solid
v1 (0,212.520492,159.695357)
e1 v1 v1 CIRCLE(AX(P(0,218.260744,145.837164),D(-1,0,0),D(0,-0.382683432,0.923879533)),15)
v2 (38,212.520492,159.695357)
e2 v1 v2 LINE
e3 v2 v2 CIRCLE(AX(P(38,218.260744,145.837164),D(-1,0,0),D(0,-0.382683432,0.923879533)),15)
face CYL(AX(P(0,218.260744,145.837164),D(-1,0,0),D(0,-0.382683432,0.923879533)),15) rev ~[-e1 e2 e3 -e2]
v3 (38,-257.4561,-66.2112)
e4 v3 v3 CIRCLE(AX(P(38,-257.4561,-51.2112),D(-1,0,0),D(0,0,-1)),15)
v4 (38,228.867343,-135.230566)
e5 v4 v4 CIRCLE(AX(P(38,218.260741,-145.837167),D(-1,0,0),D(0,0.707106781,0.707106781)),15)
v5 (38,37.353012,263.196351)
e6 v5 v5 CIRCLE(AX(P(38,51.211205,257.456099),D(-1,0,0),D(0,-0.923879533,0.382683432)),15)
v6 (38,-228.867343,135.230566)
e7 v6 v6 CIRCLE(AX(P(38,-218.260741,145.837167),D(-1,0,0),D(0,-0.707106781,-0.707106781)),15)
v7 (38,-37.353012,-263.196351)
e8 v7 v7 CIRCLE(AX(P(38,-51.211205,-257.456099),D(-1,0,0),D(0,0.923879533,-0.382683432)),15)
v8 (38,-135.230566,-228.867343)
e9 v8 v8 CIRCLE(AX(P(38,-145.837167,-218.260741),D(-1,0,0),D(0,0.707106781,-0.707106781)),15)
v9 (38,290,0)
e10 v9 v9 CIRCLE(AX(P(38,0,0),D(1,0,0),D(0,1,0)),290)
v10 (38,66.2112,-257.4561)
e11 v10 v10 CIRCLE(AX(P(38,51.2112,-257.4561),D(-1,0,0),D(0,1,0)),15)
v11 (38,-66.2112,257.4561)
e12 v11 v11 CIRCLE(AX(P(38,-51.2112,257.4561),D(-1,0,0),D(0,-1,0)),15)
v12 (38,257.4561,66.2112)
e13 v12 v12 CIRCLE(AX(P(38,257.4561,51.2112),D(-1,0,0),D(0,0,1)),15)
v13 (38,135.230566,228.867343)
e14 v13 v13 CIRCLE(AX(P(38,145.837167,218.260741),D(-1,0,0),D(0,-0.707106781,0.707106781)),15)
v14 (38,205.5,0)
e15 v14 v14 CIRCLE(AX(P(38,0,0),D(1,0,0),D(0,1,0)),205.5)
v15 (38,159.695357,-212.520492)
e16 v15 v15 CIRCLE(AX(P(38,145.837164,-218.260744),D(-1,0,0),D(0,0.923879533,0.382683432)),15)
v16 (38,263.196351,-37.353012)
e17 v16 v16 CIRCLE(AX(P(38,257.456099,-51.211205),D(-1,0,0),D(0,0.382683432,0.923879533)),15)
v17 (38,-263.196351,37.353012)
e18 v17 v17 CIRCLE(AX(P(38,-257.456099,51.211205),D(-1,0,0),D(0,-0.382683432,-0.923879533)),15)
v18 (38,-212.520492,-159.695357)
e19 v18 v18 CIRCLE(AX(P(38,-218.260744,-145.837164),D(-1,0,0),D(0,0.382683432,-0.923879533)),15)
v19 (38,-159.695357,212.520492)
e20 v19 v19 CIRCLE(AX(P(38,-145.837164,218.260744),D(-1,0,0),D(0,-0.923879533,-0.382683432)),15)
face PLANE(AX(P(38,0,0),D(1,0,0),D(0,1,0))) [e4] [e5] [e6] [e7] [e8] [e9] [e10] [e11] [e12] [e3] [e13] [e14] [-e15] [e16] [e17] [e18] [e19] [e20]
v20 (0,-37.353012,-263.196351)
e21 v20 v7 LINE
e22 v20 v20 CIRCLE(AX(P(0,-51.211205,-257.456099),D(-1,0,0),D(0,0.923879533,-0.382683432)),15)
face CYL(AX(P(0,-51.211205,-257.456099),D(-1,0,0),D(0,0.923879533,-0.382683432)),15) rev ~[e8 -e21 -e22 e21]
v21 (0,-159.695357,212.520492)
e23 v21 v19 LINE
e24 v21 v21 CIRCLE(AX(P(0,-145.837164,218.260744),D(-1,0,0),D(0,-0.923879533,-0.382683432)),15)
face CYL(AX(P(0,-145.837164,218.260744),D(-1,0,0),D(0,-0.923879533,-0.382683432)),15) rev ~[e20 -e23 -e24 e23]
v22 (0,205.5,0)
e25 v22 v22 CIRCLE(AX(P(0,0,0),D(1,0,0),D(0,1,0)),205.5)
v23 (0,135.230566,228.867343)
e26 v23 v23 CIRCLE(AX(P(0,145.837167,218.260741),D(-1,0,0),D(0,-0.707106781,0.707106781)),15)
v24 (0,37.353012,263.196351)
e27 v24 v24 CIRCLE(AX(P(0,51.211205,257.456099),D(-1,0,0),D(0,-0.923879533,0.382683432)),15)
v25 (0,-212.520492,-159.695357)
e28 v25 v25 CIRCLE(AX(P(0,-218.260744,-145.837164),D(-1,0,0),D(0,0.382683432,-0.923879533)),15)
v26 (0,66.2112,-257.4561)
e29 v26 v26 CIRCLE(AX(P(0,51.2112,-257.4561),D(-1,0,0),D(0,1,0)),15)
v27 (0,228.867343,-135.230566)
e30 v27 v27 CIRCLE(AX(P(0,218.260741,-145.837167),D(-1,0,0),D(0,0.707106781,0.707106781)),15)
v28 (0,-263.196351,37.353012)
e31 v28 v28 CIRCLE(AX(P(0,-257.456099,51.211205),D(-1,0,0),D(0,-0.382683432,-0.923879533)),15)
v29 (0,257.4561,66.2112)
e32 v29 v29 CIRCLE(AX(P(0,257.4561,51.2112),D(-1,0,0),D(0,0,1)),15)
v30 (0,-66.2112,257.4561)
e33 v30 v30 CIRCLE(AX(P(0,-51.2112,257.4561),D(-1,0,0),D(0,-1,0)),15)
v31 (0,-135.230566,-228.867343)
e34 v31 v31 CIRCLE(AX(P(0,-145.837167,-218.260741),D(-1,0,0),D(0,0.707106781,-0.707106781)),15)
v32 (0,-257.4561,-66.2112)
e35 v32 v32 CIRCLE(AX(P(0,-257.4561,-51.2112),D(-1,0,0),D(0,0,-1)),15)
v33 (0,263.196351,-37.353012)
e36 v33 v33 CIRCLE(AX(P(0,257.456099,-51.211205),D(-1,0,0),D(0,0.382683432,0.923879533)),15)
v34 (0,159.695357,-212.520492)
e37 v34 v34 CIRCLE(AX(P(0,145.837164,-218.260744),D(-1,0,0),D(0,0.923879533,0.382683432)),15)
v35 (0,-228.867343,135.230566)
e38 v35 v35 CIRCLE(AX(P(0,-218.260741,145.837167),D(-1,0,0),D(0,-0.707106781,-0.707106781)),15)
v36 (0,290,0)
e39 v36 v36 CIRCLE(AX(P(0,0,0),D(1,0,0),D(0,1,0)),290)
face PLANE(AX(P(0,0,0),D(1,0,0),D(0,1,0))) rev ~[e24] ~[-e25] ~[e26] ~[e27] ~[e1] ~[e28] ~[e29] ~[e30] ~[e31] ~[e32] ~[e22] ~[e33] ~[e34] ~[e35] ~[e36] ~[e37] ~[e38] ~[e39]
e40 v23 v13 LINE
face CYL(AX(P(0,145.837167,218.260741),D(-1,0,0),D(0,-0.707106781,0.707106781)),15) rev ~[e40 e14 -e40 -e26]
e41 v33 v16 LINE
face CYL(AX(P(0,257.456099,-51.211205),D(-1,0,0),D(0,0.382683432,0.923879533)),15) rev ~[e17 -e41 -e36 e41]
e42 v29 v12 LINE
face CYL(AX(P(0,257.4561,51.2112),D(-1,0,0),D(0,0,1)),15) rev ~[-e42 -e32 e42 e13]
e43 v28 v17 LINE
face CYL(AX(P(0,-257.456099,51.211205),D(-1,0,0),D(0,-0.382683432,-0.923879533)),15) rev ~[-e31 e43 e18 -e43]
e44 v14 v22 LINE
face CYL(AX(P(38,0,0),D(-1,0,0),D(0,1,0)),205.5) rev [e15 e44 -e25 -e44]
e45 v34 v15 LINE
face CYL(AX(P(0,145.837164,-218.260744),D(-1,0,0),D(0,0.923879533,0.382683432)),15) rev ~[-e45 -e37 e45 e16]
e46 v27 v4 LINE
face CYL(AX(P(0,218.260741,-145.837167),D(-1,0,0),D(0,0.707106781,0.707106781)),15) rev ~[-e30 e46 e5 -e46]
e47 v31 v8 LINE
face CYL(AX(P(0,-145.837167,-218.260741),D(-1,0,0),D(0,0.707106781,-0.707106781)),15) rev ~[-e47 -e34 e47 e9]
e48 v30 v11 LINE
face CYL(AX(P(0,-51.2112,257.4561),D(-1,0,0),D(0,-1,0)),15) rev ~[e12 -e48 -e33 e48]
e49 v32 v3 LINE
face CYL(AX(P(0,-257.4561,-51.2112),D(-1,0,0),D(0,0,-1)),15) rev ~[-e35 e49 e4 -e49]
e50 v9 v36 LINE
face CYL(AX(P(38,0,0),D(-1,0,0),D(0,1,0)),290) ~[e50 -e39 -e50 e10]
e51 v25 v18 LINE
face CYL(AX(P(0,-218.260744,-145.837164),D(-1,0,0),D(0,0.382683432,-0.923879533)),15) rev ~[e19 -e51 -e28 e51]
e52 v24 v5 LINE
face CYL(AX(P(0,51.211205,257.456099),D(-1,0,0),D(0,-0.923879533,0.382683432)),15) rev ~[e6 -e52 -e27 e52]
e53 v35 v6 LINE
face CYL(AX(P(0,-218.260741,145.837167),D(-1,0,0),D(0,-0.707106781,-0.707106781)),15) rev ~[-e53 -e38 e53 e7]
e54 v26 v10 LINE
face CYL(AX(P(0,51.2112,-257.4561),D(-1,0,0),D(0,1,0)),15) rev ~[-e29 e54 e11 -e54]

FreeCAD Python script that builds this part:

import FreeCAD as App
import Part
import Sketcher
from FreeCAD import Vector
Q = App.Units.Quantity


def add_polygon(sketch, points):
    """Adds a closed chain of lines whose ends are joined by coincident constraints."""
    first, n = sketch.GeometryCount, len(points)
    for a, b in zip(points, points[1:] + points[:1]):
        sketch.addGeometry(Part.LineSegment(App.Vector(*a, 0), App.Vector(*b, 0)), False)
    for i in range(n):
        sketch.addConstraint(Sketcher.Constraint("Coincident", first + i, 2, first + (i + 1) % n, 1))

doc = App.newDocument("Part")
body = doc.addObject("PartDesign::Body", "Body")

sketch1 = body.newObject("Sketcher::SketchObject", "Sketch")
sketch1.AttachmentSupport = (doc.getObject("XY_Plane"), [""])
sketch1.MapMode = "FlatFace"
add_polygon(sketch1, [(38, 206), (38, 290), (0, 290), (0, 206)])
sketch1.addConstraint([
    Sketcher.Constraint("Vertical", 0),
    Sketcher.Constraint("Horizontal", 1),
    Sketcher.Constraint("Vertical", 2),
    Sketcher.Constraint("Horizontal", 3),
    Sketcher.Constraint("PointOnObject", 1, 2, -2),
    Sketcher.Constraint("DistanceX", 1, 2, 1, 1, Q("38 mm")),
    Sketcher.Constraint("DistanceY", 0, 1, 0, 2, Q("84.5 mm")),
    Sketcher.Constraint("DistanceY", -1, 1, 0, 2, Q("290 mm")),
])
revolution = body.newObject("PartDesign::Revolution", "Revolution")
revolution.Profile = sketch1
revolution.ReferenceAxis = (sketch1, ["H_Axis"])
revolution.Angle = 360

sketch2 = body.newObject("Sketcher::SketchObject", "Sketch001")
sketch2.AttachmentSupport = (doc.getObject("YZ_Plane"), [""])
sketch2.MapMode = "FlatFace"
sketch2.addGeometry(Part.Circle(Vector(257, 51, 0), Vector(0, 0, 1), 15), False)
sketch2.addConstraint([
    Sketcher.Constraint("Diameter", 0, Q("30 mm")),
    Sketcher.Constraint("DistanceX", -1, 1, 0, 3, Q("257.456 mm")),
    Sketcher.Constraint("DistanceY", -1, 1, 0, 3, Q("51.2112 mm")),
])
pocket1 = body.newObject("PartDesign::Pocket", "Pocket")
pocket1.Profile = sketch2
pocket1.Type = "ThroughAll"
pocket1.Reversed = True
doc.recompute()

polarpattern = body.newObject("PartDesign::PolarPattern", "PolarPattern")
polarpattern.Originals = [pocket1]
polarpattern.Axis = (doc.getObject("X_Axis"), [""])
polarpattern.Angle = 360
polarpattern.Occurrences = 16
body.Tip = polarpattern

doc.recompute()
